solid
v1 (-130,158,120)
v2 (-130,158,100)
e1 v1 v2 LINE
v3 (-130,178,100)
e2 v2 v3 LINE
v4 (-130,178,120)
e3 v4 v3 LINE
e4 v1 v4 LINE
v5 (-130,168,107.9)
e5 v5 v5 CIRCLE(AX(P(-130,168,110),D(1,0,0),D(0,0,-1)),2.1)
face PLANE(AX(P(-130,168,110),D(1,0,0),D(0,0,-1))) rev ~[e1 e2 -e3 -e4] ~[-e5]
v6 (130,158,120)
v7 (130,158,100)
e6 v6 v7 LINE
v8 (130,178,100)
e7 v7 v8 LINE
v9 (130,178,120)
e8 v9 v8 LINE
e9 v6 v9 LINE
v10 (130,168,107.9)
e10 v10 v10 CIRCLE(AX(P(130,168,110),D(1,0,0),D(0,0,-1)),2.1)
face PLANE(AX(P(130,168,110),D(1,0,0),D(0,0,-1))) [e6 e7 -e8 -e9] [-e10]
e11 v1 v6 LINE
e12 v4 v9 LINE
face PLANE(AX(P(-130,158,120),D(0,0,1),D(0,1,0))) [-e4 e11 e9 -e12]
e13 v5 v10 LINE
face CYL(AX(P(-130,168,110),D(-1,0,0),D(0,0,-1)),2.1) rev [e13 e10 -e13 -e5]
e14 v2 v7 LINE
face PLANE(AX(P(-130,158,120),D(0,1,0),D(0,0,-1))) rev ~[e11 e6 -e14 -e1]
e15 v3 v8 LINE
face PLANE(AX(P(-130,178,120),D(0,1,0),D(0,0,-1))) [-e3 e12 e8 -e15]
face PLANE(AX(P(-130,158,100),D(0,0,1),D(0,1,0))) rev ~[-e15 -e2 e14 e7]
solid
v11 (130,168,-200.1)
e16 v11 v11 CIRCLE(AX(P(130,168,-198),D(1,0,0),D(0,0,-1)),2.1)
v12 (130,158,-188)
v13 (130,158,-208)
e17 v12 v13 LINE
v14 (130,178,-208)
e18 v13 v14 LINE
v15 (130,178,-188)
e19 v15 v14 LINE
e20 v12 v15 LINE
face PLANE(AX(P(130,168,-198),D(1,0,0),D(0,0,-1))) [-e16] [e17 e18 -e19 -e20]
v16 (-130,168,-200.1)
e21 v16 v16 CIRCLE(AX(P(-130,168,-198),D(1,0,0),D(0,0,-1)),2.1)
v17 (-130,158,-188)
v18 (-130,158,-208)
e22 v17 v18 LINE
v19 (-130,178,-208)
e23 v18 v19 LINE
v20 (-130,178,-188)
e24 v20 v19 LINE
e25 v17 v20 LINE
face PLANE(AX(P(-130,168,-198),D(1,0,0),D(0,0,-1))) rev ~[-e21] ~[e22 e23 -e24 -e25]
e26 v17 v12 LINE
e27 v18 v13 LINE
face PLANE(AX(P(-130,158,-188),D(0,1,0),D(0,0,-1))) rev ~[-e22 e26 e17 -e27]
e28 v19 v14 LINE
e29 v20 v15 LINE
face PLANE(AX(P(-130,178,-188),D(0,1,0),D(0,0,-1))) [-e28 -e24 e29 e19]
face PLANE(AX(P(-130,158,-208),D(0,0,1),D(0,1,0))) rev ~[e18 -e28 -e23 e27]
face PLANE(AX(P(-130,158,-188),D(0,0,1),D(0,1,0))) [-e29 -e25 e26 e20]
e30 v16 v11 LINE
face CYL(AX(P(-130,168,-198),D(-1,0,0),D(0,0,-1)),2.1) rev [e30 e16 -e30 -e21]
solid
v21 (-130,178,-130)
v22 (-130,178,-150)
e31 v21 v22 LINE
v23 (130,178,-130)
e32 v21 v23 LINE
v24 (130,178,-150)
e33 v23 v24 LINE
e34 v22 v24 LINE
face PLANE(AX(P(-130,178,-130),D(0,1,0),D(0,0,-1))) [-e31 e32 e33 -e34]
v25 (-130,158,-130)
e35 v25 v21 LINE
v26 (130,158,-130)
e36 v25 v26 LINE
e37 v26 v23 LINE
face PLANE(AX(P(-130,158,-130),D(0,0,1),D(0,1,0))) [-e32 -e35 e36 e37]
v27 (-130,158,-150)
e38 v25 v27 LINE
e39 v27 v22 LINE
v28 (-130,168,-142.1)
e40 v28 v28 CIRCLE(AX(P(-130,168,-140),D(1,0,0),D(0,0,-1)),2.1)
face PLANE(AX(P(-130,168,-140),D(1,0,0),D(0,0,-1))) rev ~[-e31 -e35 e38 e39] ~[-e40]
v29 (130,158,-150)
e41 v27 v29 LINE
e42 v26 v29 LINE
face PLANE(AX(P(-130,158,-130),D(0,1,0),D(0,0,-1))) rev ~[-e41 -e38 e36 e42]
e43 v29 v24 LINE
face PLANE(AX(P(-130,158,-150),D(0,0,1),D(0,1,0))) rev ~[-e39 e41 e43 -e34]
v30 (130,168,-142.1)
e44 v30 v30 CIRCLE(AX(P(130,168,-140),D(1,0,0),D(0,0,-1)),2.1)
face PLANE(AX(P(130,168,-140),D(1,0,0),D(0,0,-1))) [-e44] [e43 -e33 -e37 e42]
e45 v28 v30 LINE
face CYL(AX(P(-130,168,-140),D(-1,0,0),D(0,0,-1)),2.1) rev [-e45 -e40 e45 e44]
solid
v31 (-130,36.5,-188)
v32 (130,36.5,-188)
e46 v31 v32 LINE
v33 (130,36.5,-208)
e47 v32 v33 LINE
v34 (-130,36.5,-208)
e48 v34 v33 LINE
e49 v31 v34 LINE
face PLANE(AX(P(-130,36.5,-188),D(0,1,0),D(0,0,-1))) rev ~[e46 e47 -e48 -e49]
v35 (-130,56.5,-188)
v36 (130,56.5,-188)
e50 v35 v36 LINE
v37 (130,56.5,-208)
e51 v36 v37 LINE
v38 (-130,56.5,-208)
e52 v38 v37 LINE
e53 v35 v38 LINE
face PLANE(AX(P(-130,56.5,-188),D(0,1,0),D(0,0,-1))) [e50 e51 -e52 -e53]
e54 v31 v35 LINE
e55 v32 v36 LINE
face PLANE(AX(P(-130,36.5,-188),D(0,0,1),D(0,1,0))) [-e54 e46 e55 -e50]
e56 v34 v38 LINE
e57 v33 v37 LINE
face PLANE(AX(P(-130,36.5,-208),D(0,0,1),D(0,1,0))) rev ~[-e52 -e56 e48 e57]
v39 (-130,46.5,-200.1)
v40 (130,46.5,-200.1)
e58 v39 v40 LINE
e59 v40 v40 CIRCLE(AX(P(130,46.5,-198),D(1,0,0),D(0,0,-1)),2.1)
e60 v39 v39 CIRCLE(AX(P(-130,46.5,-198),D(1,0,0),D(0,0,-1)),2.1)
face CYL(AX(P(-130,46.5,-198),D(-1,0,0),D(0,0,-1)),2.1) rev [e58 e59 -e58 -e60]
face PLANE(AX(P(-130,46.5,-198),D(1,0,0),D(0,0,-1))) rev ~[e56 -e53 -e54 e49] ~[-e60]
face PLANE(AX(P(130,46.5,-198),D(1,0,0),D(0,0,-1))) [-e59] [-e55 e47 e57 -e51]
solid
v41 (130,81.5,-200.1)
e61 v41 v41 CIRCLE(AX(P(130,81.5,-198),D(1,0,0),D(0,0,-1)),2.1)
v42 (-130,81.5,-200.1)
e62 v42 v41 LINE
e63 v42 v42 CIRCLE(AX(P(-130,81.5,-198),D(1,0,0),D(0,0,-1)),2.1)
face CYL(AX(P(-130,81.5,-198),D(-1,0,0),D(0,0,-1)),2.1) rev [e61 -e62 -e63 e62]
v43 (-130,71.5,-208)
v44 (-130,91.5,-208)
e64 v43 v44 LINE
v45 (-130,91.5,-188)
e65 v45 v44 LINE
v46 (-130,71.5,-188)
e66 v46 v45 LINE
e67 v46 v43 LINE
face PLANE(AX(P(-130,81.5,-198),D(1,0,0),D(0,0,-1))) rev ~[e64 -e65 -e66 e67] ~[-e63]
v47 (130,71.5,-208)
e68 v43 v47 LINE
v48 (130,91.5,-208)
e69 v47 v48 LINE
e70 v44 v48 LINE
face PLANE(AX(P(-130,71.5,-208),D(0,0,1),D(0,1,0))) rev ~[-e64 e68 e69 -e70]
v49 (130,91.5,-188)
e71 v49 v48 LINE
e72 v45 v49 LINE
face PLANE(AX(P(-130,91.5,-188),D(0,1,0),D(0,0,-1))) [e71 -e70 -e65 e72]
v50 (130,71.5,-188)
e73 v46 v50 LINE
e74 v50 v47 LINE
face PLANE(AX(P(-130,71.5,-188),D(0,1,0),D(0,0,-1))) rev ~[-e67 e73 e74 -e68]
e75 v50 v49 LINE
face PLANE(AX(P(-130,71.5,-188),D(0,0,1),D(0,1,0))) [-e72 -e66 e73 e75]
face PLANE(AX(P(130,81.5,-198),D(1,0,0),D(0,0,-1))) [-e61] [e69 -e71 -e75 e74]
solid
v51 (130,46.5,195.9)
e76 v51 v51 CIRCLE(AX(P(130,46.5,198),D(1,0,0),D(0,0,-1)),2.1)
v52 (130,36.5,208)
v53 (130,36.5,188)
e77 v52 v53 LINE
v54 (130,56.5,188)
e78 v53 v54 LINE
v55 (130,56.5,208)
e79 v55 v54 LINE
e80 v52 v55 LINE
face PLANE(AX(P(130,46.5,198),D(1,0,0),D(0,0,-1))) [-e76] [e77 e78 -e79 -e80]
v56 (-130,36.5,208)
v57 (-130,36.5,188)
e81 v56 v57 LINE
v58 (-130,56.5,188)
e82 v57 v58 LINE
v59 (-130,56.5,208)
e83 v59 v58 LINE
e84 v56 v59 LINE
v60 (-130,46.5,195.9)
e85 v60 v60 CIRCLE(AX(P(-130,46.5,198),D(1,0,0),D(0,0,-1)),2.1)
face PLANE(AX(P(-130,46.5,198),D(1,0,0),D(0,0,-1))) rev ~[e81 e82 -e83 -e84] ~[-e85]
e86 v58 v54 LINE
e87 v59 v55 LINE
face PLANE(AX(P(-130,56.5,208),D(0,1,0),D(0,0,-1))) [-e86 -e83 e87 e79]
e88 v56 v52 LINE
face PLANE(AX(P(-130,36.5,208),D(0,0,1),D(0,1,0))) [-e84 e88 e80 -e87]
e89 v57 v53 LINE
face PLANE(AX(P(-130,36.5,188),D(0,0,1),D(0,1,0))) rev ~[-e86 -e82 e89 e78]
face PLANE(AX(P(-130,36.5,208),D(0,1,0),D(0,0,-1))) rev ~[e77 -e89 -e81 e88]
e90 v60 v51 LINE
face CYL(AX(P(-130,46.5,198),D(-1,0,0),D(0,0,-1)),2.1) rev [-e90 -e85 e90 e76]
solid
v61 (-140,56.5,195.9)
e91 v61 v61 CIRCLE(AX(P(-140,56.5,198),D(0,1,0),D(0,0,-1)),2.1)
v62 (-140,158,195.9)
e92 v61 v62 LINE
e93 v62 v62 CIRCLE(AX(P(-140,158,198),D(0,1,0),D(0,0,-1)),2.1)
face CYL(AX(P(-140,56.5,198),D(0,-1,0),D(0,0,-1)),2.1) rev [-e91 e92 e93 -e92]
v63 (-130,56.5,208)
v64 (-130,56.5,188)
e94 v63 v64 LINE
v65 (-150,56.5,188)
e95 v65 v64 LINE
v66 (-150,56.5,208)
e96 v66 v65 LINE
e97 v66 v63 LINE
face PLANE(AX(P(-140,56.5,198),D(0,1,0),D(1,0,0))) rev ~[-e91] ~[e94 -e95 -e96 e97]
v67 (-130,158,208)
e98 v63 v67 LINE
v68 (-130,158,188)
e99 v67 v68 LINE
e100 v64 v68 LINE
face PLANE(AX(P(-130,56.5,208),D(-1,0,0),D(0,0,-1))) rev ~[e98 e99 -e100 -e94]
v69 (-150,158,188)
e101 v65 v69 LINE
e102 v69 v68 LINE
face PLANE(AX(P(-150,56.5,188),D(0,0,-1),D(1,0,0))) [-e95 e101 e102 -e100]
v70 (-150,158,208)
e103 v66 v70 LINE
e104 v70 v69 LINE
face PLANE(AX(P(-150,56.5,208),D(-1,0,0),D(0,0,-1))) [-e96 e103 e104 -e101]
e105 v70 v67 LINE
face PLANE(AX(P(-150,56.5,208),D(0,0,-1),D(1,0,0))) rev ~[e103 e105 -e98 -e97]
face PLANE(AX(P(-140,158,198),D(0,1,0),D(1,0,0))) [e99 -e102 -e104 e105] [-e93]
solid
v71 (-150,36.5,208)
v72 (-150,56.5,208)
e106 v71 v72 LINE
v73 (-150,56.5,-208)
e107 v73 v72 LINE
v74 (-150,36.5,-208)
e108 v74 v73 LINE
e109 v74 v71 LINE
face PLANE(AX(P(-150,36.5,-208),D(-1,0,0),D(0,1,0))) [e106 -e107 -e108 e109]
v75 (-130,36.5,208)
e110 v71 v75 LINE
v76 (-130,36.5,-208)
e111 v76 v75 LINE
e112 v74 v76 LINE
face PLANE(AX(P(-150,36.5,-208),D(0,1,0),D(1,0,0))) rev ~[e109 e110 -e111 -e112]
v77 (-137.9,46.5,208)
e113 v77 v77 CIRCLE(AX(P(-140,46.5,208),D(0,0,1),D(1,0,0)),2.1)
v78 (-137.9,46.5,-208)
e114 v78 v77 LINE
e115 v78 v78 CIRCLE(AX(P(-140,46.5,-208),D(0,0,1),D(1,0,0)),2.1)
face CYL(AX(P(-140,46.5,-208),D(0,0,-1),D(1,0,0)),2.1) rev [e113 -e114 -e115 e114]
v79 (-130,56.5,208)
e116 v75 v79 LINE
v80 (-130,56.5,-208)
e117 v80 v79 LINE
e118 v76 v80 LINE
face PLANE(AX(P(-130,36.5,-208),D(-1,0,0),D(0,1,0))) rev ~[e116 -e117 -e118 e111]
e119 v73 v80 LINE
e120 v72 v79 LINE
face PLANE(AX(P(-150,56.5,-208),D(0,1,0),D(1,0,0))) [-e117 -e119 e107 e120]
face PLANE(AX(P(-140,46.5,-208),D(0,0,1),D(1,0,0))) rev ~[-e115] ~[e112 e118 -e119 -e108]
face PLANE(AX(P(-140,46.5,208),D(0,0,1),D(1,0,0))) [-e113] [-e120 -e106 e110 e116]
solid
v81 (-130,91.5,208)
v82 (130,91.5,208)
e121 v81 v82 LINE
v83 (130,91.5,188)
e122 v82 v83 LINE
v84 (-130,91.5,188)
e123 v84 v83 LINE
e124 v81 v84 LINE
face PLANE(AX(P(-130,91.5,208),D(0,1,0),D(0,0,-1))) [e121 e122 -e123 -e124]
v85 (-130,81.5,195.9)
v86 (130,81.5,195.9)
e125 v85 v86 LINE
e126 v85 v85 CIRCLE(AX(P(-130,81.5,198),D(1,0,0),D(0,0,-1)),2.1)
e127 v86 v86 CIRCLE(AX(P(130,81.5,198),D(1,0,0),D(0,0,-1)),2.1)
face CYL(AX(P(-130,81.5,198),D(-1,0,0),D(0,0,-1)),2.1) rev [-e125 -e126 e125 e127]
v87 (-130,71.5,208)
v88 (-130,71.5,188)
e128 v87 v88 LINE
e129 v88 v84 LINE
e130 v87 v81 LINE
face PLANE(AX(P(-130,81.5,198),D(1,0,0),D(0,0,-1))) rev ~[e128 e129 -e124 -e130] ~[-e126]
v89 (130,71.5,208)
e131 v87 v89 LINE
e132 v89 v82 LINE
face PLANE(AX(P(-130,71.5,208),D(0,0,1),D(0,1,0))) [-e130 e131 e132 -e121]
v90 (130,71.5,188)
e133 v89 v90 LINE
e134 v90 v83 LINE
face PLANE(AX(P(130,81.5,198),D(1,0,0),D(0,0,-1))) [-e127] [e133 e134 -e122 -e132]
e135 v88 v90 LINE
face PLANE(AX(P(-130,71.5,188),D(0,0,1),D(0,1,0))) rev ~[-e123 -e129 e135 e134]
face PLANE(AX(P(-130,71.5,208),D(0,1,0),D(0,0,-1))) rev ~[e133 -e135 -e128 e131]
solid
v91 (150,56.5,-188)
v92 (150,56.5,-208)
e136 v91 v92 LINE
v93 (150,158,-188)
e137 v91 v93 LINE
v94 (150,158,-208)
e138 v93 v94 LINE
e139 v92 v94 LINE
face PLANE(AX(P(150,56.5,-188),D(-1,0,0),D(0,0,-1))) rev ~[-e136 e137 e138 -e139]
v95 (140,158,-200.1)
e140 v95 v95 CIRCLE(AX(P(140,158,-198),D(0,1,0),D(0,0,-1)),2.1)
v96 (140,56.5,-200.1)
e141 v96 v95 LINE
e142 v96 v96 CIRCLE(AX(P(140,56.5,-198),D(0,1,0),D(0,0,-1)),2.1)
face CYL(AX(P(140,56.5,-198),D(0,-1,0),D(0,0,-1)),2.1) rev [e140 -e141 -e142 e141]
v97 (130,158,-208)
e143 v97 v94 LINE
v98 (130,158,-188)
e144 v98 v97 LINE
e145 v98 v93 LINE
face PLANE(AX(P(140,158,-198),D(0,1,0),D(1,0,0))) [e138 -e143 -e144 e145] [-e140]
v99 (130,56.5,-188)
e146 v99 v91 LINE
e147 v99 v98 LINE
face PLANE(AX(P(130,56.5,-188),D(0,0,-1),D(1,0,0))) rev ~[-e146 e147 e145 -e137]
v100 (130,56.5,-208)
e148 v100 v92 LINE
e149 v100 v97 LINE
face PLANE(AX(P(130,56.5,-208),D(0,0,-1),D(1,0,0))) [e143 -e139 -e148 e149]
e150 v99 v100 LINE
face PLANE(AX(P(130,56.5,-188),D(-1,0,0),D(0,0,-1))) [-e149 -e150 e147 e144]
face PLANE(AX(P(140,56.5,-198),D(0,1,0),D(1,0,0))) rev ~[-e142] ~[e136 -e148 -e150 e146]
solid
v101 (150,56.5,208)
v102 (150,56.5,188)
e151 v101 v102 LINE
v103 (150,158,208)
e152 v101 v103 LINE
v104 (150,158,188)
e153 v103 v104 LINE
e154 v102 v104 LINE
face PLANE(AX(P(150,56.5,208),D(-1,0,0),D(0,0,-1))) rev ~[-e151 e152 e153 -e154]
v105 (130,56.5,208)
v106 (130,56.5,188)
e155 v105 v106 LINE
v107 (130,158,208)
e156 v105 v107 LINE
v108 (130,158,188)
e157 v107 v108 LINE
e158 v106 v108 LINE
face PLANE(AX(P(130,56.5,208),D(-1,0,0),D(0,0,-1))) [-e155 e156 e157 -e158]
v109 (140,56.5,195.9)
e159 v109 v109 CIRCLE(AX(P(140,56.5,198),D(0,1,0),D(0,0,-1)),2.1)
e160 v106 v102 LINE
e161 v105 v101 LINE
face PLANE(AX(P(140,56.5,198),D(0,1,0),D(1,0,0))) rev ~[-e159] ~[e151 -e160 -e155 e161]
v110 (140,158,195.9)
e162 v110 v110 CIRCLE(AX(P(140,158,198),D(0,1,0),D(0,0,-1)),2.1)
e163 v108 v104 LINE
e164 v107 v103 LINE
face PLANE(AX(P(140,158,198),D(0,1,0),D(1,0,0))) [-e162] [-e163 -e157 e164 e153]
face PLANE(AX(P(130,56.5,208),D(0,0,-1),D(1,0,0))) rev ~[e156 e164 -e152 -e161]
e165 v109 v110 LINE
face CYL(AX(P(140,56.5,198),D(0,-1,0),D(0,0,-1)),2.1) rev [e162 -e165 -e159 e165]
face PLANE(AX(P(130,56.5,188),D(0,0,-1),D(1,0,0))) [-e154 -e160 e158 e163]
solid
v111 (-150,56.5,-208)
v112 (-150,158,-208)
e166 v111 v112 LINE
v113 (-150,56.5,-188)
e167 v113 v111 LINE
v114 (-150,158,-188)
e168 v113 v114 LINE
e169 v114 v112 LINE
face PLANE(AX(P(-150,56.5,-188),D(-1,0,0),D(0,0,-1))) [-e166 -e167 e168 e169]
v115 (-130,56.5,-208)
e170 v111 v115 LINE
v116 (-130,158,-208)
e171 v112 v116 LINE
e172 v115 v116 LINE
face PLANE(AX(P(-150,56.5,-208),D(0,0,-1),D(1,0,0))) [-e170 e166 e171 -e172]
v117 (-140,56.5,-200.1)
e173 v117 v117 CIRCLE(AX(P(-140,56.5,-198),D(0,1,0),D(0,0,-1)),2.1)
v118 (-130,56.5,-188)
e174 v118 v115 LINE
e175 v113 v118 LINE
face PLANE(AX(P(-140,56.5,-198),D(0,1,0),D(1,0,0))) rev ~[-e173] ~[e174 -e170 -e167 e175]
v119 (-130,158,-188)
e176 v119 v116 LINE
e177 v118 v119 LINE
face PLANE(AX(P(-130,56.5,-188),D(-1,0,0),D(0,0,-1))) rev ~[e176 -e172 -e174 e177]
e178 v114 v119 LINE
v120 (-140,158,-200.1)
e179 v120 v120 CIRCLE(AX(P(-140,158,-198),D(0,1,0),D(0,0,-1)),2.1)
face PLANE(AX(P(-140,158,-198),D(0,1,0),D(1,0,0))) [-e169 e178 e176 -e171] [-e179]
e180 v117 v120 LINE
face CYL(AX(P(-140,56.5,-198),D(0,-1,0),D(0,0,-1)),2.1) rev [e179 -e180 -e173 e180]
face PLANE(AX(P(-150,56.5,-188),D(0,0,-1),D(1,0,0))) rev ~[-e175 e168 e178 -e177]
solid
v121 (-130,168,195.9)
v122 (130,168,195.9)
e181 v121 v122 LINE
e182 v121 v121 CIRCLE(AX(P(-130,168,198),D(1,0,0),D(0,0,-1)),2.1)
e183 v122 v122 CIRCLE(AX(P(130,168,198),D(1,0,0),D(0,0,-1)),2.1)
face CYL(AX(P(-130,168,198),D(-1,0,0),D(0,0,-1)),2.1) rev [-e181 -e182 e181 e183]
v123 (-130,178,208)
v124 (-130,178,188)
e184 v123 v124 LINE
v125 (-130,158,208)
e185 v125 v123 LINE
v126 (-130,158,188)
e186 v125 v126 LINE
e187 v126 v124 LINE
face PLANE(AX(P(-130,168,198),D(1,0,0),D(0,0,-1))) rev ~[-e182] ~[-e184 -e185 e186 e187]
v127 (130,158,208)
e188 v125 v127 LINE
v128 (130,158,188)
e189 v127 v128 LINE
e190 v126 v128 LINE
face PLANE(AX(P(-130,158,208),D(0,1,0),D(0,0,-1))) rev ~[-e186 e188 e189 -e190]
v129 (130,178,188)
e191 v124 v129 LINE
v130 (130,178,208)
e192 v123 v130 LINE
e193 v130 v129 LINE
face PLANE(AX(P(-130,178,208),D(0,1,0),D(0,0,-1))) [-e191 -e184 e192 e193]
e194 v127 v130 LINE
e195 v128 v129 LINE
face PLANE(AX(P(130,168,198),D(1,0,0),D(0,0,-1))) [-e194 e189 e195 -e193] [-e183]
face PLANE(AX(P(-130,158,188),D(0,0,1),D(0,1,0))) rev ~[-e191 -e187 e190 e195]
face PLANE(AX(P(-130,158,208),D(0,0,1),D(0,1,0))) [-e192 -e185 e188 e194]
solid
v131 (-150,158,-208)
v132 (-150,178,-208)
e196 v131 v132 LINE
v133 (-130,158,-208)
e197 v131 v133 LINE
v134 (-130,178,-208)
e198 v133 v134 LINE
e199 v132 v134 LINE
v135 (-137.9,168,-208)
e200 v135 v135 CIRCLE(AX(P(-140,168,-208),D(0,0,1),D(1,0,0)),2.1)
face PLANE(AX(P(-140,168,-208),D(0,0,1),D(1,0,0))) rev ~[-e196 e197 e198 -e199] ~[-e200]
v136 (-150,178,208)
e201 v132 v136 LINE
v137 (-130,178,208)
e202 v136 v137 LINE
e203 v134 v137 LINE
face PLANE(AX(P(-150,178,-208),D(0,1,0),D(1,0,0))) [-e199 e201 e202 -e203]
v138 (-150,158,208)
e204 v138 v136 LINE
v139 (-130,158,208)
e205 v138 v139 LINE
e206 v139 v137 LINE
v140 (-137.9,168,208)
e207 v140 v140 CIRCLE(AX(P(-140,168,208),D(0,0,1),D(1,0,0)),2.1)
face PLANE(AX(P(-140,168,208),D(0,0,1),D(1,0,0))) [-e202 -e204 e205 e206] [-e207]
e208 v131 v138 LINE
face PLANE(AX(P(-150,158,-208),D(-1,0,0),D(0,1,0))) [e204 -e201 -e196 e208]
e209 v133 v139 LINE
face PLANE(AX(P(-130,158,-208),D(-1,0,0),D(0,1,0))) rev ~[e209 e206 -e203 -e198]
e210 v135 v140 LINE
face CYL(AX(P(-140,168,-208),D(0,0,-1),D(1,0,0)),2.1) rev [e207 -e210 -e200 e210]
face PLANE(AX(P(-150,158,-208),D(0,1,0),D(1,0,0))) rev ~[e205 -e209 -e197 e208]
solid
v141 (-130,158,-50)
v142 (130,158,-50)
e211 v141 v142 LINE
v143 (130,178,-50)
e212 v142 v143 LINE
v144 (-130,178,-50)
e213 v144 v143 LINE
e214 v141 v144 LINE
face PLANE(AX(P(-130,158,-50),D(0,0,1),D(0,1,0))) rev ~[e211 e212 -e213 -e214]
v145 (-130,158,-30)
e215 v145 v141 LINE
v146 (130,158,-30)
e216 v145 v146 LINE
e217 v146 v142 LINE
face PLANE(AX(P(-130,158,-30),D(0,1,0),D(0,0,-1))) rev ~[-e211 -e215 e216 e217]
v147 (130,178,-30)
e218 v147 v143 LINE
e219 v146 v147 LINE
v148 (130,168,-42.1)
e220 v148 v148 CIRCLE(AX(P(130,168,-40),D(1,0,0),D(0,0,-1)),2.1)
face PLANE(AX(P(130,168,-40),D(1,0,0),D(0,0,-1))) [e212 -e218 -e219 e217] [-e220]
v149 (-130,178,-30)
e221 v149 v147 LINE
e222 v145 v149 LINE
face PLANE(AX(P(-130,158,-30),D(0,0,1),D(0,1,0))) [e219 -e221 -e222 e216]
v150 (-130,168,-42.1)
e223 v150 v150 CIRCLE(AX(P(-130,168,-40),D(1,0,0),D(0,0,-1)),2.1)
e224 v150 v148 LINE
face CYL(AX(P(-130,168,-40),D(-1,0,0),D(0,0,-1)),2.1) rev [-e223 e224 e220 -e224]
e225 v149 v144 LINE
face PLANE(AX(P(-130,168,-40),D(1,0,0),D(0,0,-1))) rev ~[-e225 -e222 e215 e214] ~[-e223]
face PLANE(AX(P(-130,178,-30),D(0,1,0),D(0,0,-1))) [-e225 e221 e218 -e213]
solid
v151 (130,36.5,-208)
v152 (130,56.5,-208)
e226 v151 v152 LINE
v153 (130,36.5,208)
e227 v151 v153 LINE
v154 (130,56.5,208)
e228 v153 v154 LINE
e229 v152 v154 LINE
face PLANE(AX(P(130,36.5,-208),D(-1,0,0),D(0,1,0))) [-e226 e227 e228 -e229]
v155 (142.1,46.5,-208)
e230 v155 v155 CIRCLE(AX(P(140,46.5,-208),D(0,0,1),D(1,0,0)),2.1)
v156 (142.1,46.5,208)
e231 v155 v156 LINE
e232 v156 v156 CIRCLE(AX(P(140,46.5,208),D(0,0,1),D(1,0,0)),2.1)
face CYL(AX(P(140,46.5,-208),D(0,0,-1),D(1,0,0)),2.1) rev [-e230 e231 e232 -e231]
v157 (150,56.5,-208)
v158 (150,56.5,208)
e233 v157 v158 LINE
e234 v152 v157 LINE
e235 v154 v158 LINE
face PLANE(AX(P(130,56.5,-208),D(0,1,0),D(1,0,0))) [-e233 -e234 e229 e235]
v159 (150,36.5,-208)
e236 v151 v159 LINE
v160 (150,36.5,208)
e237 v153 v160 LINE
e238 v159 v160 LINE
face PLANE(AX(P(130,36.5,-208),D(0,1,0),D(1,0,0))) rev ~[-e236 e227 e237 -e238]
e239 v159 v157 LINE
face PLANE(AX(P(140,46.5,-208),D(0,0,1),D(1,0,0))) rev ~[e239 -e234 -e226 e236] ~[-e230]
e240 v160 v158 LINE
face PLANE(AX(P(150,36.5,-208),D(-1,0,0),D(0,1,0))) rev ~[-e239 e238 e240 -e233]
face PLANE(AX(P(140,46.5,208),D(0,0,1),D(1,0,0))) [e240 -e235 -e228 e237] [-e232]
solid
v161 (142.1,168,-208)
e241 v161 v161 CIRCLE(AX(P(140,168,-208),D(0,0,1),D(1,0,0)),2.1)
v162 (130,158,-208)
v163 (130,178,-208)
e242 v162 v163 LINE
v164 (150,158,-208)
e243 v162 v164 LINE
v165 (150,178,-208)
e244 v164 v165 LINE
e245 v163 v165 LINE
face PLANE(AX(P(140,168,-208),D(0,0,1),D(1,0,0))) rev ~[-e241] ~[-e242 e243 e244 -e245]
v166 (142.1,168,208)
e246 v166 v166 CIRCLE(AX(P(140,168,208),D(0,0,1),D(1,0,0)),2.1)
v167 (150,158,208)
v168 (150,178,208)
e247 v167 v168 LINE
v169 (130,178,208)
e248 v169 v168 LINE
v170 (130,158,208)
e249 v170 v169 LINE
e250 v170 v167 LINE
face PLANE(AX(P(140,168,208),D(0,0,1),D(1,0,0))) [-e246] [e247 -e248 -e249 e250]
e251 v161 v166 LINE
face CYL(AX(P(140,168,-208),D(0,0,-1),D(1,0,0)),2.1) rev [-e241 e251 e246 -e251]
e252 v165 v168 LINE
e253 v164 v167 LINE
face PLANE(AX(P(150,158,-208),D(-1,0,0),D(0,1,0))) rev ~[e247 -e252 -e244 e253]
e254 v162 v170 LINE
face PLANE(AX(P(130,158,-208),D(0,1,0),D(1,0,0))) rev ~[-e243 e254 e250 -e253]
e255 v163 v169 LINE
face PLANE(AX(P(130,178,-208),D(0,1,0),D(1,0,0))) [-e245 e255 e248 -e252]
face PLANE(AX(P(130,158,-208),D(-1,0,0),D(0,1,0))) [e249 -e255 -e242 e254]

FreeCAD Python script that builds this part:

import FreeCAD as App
import Part
import Sketcher
from FreeCAD import Vector
Q = App.Units.Quantity

doc = App.newDocument("Part")
body = doc.addObject("PartDesign::Body", "Body")

sketch1 = body.newObject("Sketcher::SketchObject", "Sketch")
sketch1.AttachmentSupport = (doc.getObject("XY_Plane"), [""])
sketch1.MapMode = "FlatFace"
sketch1.AttachmentOffset = App.Placement(Vector(0, 0, -208), App.Rotation())
sketch1.addGeometry([
    Part.LineSegment(Vector(130, 56.5, 0), Vector(130, 36.5, 0)),
    Part.LineSegment(Vector(130, 36.5, 0), Vector(150, 36.5, 0)),
    Part.LineSegment(Vector(150, 36.5, 0), Vector(150, 56.5, 0)),
    Part.LineSegment(Vector(150, 56.5, 0), Vector(130, 56.5, 0)),
    Part.Circle(Vector(140, 46.5, 0), Vector(0, 0, 1), 2.1),
], False)
sketch1.addConstraint([
    Sketcher.Constraint("Coincident", 0, 2, 1, 1),
    Sketcher.Constraint("Coincident", 1, 2, 2, 1),
    Sketcher.Constraint("Coincident", 2, 2, 3, 1),
    Sketcher.Constraint("Coincident", 3, 2, 0, 1),
    Sketcher.Constraint("Vertical", 0),
    Sketcher.Constraint("Horizontal", 1),
    Sketcher.Constraint("Vertical", 2),
    Sketcher.Constraint("Horizontal", 3),
    Sketcher.Constraint("Equal", 3, 0),
    Sketcher.Constraint("Diameter", 4, Q("4.2 mm")),
    Sketcher.Constraint("DistanceX", 1, 1, 1, 2, Q("20 mm")),
    Sketcher.Constraint("DistanceX", -1, 1, 4, 3, Q("140 mm")),
    Sketcher.Constraint("DistanceX", -1, 1, 0, 2, Q("130 mm")),
    Sketcher.Constraint("DistanceY", 0, 2, 4, 3, Q("10 mm")),
    Sketcher.Constraint("DistanceY", -1, 1, 4, 3, Q("46.5 mm")),
])
pad1 = body.newObject("PartDesign::Pad", "Pad")
pad1.Profile = sketch1
pad1.Length = 416
body2 = doc.addObject("PartDesign::Body", "Body001")

sketch2 = body2.newObject("Sketcher::SketchObject", "Sketch001")
sketch2.AttachmentSupport = (doc.getObject("XY_Plane001"), [""])
sketch2.MapMode = "FlatFace"
sketch2.AttachmentOffset = App.Placement(Vector(0, 0, -208), App.Rotation())
sketch2.addGeometry([
    Part.LineSegment(Vector(-150, 56.5, 0), Vector(-150, 36.5, 0)),
    Part.LineSegment(Vector(-150, 36.5, 0), Vector(-130, 36.5, 0)),
    Part.LineSegment(Vector(-130, 36.5, 0), Vector(-130, 56.5, 0)),
    Part.LineSegment(Vector(-130, 56.5, 0), Vector(-150, 56.5, 0)),
    Part.Circle(Vector(-140, 46.5, 0), Vector(0, 0, 1), 2.1),
], False)
sketch2.addConstraint([
    Sketcher.Constraint("Coincident", 0, 2, 1, 1),
    Sketcher.Constraint("Coincident", 1, 2, 2, 1),
    Sketcher.Constraint("Coincident", 2, 2, 3, 1),
    Sketcher.Constraint("Coincident", 3, 2, 0, 1),
    Sketcher.Constraint("Vertical", 0),
    Sketcher.Constraint("Horizontal", 1),
    Sketcher.Constraint("Vertical", 2),
    Sketcher.Constraint("Horizontal", 3),
    Sketcher.Constraint("Equal", 3, 0),
    Sketcher.Constraint("Diameter", 4, Q("4.2 mm")),
    Sketcher.Constraint("DistanceX", 1, 1, 1, 2, Q("20 mm")),
    Sketcher.Constraint("DistanceX", 4, 3, -1, 1, Q("140 mm")),
    Sketcher.Constraint("DistanceX", 0, 2, -1, 1, Q("150 mm")),
    Sketcher.Constraint("DistanceY", 0, 2, 4, 3, Q("10 mm")),
    Sketcher.Constraint("DistanceY", -1, 1, 4, 3, Q("46.5 mm")),
])
pad2 = body2.newObject("PartDesign::Pad", "Pad001")
pad2.Profile = sketch2
pad2.Length = 416
body3 = doc.addObject("PartDesign::Body", "Body002")

sketch3 = body3.newObject("Sketcher::SketchObject", "Sketch002")
sketch3.AttachmentSupport = (doc.getObject("XY_Plane002"), [""])
sketch3.MapMode = "FlatFace"
sketch3.AttachmentOffset = App.Placement(Vector(0, 0, -208), App.Rotation())
sketch3.addGeometry([
    Part.LineSegment(Vector(130, 178, 0), Vector(130, 158, 0)),
    Part.LineSegment(Vector(130, 158, 0), Vector(150, 158, 0)),
    Part.LineSegment(Vector(150, 158, 0), Vector(150, 178, 0)),
    Part.LineSegment(Vector(150, 178, 0), Vector(130, 178, 0)),
    Part.Circle(Vector(140, 168, 0), Vector(0, 0, 1), 2.1),
], False)
sketch3.addConstraint([
    Sketcher.Constraint("Coincident", 0, 2, 1, 1),
    Sketcher.Constraint("Coincident", 1, 2, 2, 1),
    Sketcher.Constraint("Coincident", 2, 2, 3, 1),
    Sketcher.Constraint("Coincident", 3, 2, 0, 1),
    Sketcher.Constraint("Vertical", 0),
    Sketcher.Constraint("Horizontal", 1),
    Sketcher.Constraint("Vertical", 2),
    Sketcher.Constraint("Horizontal", 3),
    Sketcher.Constraint("Equal", 3, 0),
    Sketcher.Constraint("Diameter", 4, Q("4.2 mm")),
    Sketcher.Constraint("DistanceX", 1, 1, 1, 2, Q("20 mm")),
    Sketcher.Constraint("DistanceX", -1, 1, 4, 3, Q("140 mm")),
    Sketcher.Constraint("DistanceY", -1, 1, 4, 3, Q("168 mm")),
    Sketcher.Constraint("DistanceX", -1, 1, 0, 2, Q("130 mm")),
    Sketcher.Constraint("DistanceY", -1, 1, 0, 2, Q("158 mm")),
])
pad3 = body3.newObject("PartDesign::Pad", "Pad002")
pad3.Profile = sketch3
pad3.Length = 416
body4 = doc.addObject("PartDesign::Body", "Body003")

sketch4 = body4.newObject("Sketcher::SketchObject", "Sketch003")
sketch4.AttachmentSupport = (doc.getObject("XY_Plane003"), [""])
sketch4.MapMode = "FlatFace"
sketch4.AttachmentOffset = App.Placement(Vector(0, 0, -208), App.Rotation())
sketch4.addGeometry([
    Part.LineSegment(Vector(-150, 178, 0), Vector(-150, 158, 0)),
    Part.LineSegment(Vector(-150, 158, 0), Vector(-130, 158, 0)),
    Part.LineSegment(Vector(-130, 158, 0), Vector(-130, 178, 0)),
    Part.LineSegment(Vector(-130, 178, 0), Vector(-150, 178, 0)),
    Part.Circle(Vector(-140, 168, 0), Vector(0, 0, 1), 2.1),
], False)
sketch4.addConstraint([
    Sketcher.Constraint("Coincident", 0, 2, 1, 1),
    Sketcher.Constraint("Coincident", 1, 2, 2, 1),
    Sketcher.Constraint("Coincident", 2, 2, 3, 1),
    Sketcher.Constraint("Coincident", 3, 2, 0, 1),
    Sketcher.Constraint("Vertical", 0),
    Sketcher.Constraint("Horizontal", 1),
    Sketcher.Constraint("Vertical", 2),
    Sketcher.Constraint("Horizontal", 3),
    Sketcher.Constraint("Equal", 3, 0),
    Sketcher.Constraint("Diameter", 4, Q("4.2 mm")),
    Sketcher.Constraint("DistanceX", 1, 1, 1, 2, Q("20 mm")),
    Sketcher.Constraint("DistanceX", 4, 3, -1, 1, Q("140 mm")),
    Sketcher.Constraint("DistanceY", -1, 1, 4, 3, Q("168 mm")),
    Sketcher.Constraint("DistanceX", 0, 2, -1, 1, Q("150 mm")),
    Sketcher.Constraint("DistanceY", -1, 1, 0, 2, Q("158 mm")),
])
pad4 = body4.newObject("PartDesign::Pad", "Pad003")
pad4.Profile = sketch4
pad4.Length = 416
body5 = doc.addObject("PartDesign::Body", "Body004")

sketch5 = body5.newObject("Sketcher::SketchObject", "Sketch004")
sketch5.AttachmentSupport = (doc.getObject("YZ_Plane004"), [""])
sketch5.MapMode = "FlatFace"
sketch5.AttachmentOffset = App.Placement(Vector(0, 0, -130), App.Rotation())
sketch5.addGeometry([
    Part.LineSegment(Vector(56.5, 208, 0), Vector(36.5, 208, 0)),
    Part.LineSegment(Vector(36.5, 208, 0), Vector(36.5, 188, 0)),
    Part.LineSegment(Vector(36.5, 188, 0), Vector(56.5, 188, 0)),
    Part.LineSegment(Vector(56.5, 188, 0), Vector(56.5, 208, 0)),
    Part.Circle(Vector(46.5, 198, 0), Vector(0, 0, 1), 2.1),
], False)
sketch5.addConstraint([
    Sketcher.Constraint("Coincident", 0, 2, 1, 1),
    Sketcher.Constraint("Coincident", 1, 2, 2, 1),
    Sketcher.Constraint("Coincident", 2, 2, 3, 1),
    Sketcher.Constraint("Coincident", 3, 2, 0, 1),
    Sketcher.Constraint("Horizontal", 0),
    Sketcher.Constraint("Vertical", 1),
    Sketcher.Constraint("Horizontal", 2),
    Sketcher.Constraint("Vertical", 3),
    Sketcher.Constraint("Equal", 2, 1),
    Sketcher.Constraint("Diameter", 4, Q("4.2 mm")),
    Sketcher.Constraint("DistanceX", 0, 2, 0, 1, Q("20 mm")),
    Sketcher.Constraint("DistanceY", -1, 1, 4, 3, Q("198 mm")),
    Sketcher.Constraint("DistanceY", -1, 1, 0, 2, Q("208 mm")),
    Sketcher.Constraint("DistanceX", 0, 2, 4, 3, Q("10 mm")),
    Sketcher.Constraint("DistanceX", -1, 1, 4, 3, Q("46.5 mm")),
])
pad5 = body5.newObject("PartDesign::Pad", "Pad004")
pad5.Profile = sketch5
pad5.Length = 260
body6 = doc.addObject("PartDesign::Body", "Body005")

sketch6 = body6.newObject("Sketcher::SketchObject", "Sketch005")
sketch6.AttachmentSupport = (doc.getObject("YZ_Plane005"), [""])
sketch6.MapMode = "FlatFace"
sketch6.AttachmentOffset = App.Placement(Vector(0, 0, -130), App.Rotation())
sketch6.addGeometry([
    Part.LineSegment(Vector(56.5, -188, 0), Vector(36.5, -188, 0)),
    Part.LineSegment(Vector(36.5, -188, 0), Vector(36.5, -208, 0)),
    Part.LineSegment(Vector(36.5, -208, 0), Vector(56.5, -208, 0)),
    Part.LineSegment(Vector(56.5, -208, 0), Vector(56.5, -188, 0)),
    Part.Circle(Vector(46.5, -198, 0), Vector(0, 0, 1), 2.1),
], False)
sketch6.addConstraint([
    Sketcher.Constraint("Coincident", 0, 2, 1, 1),
    Sketcher.Constraint("Coincident", 1, 2, 2, 1),
    Sketcher.Constraint("Coincident", 2, 2, 3, 1),
    Sketcher.Constraint("Coincident", 3, 2, 0, 1),
    Sketcher.Constraint("Horizontal", 0),
    Sketcher.Constraint("Vertical", 1),
    Sketcher.Constraint("Horizontal", 2),
    Sketcher.Constraint("Vertical", 3),
    Sketcher.Constraint("Equal", 2, 1),
    Sketcher.Constraint("Diameter", 4, Q("4.2 mm")),
    Sketcher.Constraint("DistanceX", 0, 2, 0, 1, Q("20 mm")),
    Sketcher.Constraint("DistanceY", 4, 3, -1, 1, Q("198 mm")),
    Sketcher.Constraint("DistanceY", 0, 2, -1, 1, Q("188 mm")),
    Sketcher.Constraint("DistanceX", 0, 2, 4, 3, Q("10 mm")),
    Sketcher.Constraint("DistanceX", -1, 1, 4, 3, Q("46.5 mm")),
])
pad6 = body6.newObject("PartDesign::Pad", "Pad005")
pad6.Profile = sketch6
pad6.Length = 260
body7 = doc.addObject("PartDesign::Body", "Body006")

sketch7 = body7.newObject("Sketcher::SketchObject", "Sketch006")
sketch7.AttachmentSupport = (doc.getObject("YZ_Plane006"), [""])
sketch7.MapMode = "FlatFace"
sketch7.AttachmentOffset = App.Placement(Vector(0, 0, -130), App.Rotation())
sketch7.addGeometry([
    Part.LineSegment(Vector(178, 208, 0), Vector(158, 208, 0)),
    Part.LineSegment(Vector(158, 208, 0), Vector(158, 188, 0)),
    Part.LineSegment(Vector(158, 188, 0), Vector(178, 188, 0)),
    Part.LineSegment(Vector(178, 188, 0), Vector(178, 208, 0)),
    Part.Circle(Vector(168, 198, 0), Vector(0, 0, 1), 2.1),
], False)
sketch7.addConstraint([
    Sketcher.Constraint("Coincident", 0, 2, 1, 1),
    Sketcher.Constraint("Coincident", 1, 2, 2, 1),
    Sketcher.Constraint("Coincident", 2, 2, 3, 1),
    Sketcher.Constraint("Coincident", 3, 2, 0, 1),
    Sketcher.Constraint("Horizontal", 0),
    Sketcher.Constraint("Vertical", 1),
    Sketcher.Constraint("Horizontal", 2),
    Sketcher.Constraint("Vertical", 3),
    Sketcher.Constraint("Equal", 2, 1),
    Sketcher.Constraint("Diameter", 4, Q("4.2 mm")),
    Sketcher.Constraint("DistanceX", 0, 2, 0, 1, Q("20 mm")),
    Sketcher.Constraint("DistanceX", -1, 1, 4, 3, Q("168 mm")),
    Sketcher.Constraint("DistanceY", -1, 1, 4, 3, Q("198 mm")),
    Sketcher.Constraint("DistanceX", -1, 1, 0, 2, Q("158 mm")),
    Sketcher.Constraint("DistanceY", -1, 1, 0, 2, Q("208 mm")),
])
pad7 = body7.newObject("PartDesign::Pad", "Pad006")
pad7.Profile = sketch7
pad7.Length = 260
body8 = doc.addObject("PartDesign::Body", "Body007")

sketch8 = body8.newObject("Sketcher::SketchObject", "Sketch007")
sketch8.AttachmentSupport = (doc.getObject("YZ_Plane007"), [""])
sketch8.MapMode = "FlatFace"
sketch8.AttachmentOffset = App.Placement(Vector(0, 0, -130), App.Rotation())
sketch8.addGeometry([
    Part.LineSegment(Vector(178, -188, 0), Vector(158, -188, 0)),
    Part.LineSegment(Vector(158, -188, 0), Vector(158, -208, 0)),
    Part.LineSegment(Vector(158, -208, 0), Vector(178, -208, 0)),
    Part.LineSegment(Vector(178, -208, 0), Vector(178, -188, 0)),
    Part.Circle(Vector(168, -198, 0), Vector(0, 0, 1), 2.1),
], False)
sketch8.addConstraint([
    Sketcher.Constraint("Coincident", 0, 2, 1, 1),
    Sketcher.Constraint("Coincident", 1, 2, 2, 1),
    Sketcher.Constraint("Coincident", 2, 2, 3, 1),
    Sketcher.Constraint("Coincident", 3, 2, 0, 1),
    Sketcher.Constraint("Horizontal", 0),
    Sketcher.Constraint("Vertical", 1),
    Sketcher.Constraint("Horizontal", 2),
    Sketcher.Constraint("Vertical", 3),
    Sketcher.Constraint("Equal", 2, 1),
    Sketcher.Constraint("Diameter", 4, Q("4.2 mm")),
    Sketcher.Constraint("DistanceX", 0, 2, 0, 1, Q("20 mm")),
    Sketcher.Constraint("DistanceX", -1, 1, 4, 3, Q("168 mm")),
    Sketcher.Constraint("DistanceY", 4, 3, -1, 1, Q("198 mm")),
    Sketcher.Constraint("DistanceX", -1, 1, 0, 2, Q("158 mm")),
    Sketcher.Constraint("DistanceY", 0, 2, -1, 1, Q("188 mm")),
])
pad8 = body8.newObject("PartDesign::Pad", "Pad007")
pad8.Profile = sketch8
pad8.Length = 260
body9 = doc.addObject("PartDesign::Body", "Body008")

sketch9 = body9.newObject("Sketcher::SketchObject", "Sketch008")
sketch9.AttachmentSupport = (doc.getObject("YZ_Plane008"), [""])
sketch9.MapMode = "FlatFace"
sketch9.AttachmentOffset = App.Placement(Vector(0, 0, -130), App.Rotation())
sketch9.addGeometry([
    Part.LineSegment(Vector(91.5, 208, 0), Vector(71.5, 208, 0)),
    Part.LineSegment(Vector(71.5, 208, 0), Vector(71.5, 188, 0)),
    Part.LineSegment(Vector(71.5, 188, 0), Vector(91.5, 188, 0)),
    Part.LineSegment(Vector(91.5, 188, 0), Vector(91.5, 208, 0)),
    Part.Circle(Vector(81.5, 198, 0), Vector(0, 0, 1), 2.1),
], False)
sketch9.addConstraint([
    Sketcher.Constraint("Coincident", 0, 2, 1, 1),
    Sketcher.Constraint("Coincident", 1, 2, 2, 1),
    Sketcher.Constraint("Coincident", 2, 2, 3, 1),
    Sketcher.Constraint("Coincident", 3, 2, 0, 1),
    Sketcher.Constraint("Horizontal", 0),
    Sketcher.Constraint("Vertical", 1),
    Sketcher.Constraint("Horizontal", 2),
    Sketcher.Constraint("Vertical", 3),
    Sketcher.Constraint("Equal", 2, 1),
    Sketcher.Constraint("Diameter", 4, Q("4.2 mm")),
    Sketcher.Constraint("DistanceX", 0, 2, 0, 1, Q("20 mm")),
    Sketcher.Constraint("DistanceY", -1, 1, 4, 3, Q("198 mm")),
    Sketcher.Constraint("DistanceY", -1, 1, 0, 2, Q("208 mm")),
    Sketcher.Constraint("DistanceX", 0, 2, 4, 3, Q("10 mm")),
    Sketcher.Constraint("DistanceX", -1, 1, 4, 3, Q("81.5 mm")),
])
pad9 = body9.newObject("PartDesign::Pad", "Pad008")
pad9.Profile = sketch9
pad9.Length = 260
body10 = doc.addObject("PartDesign::Body", "Body009")

sketch10 = body10.newObject("Sketcher::SketchObject", "Sketch009")
sketch10.AttachmentSupport = (doc.getObject("YZ_Plane009"), [""])
sketch10.MapMode = "FlatFace"
sketch10.AttachmentOffset = App.Placement(Vector(0, 0, -130), App.Rotation())
sketch10.addGeometry([
    Part.LineSegment(Vector(91.5, -188, 0), Vector(71.5, -188, 0)),
    Part.LineSegment(Vector(71.5, -188, 0), Vector(71.5, -208, 0)),
    Part.LineSegment(Vector(71.5, -208, 0), Vector(91.5, -208, 0)),
    Part.LineSegment(Vector(91.5, -208, 0), Vector(91.5, -188, 0)),
    Part.Circle(Vector(81.5, -198, 0), Vector(0, 0, 1), 2.1),
], False)
sketch10.addConstraint([
    Sketcher.Constraint("Coincident", 0, 2, 1, 1),
    Sketcher.Constraint("Coincident", 1, 2, 2, 1),
    Sketcher.Constraint("Coincident", 2, 2, 3, 1),
    Sketcher.Constraint("Coincident", 3, 2, 0, 1),
    Sketcher.Constraint("Horizontal", 0),
    Sketcher.Constraint("Vertical", 1),
    Sketcher.Constraint("Horizontal", 2),
    Sketcher.Constraint("Vertical", 3),
    Sketcher.Constraint("Equal", 2, 1),
    Sketcher.Constraint("Diameter", 4, Q("4.2 mm")),
    Sketcher.Constraint("DistanceX", 0, 2, 0, 1, Q("20 mm")),
    Sketcher.Constraint("DistanceY", 4, 3, -1, 1, Q("198 mm")),
    Sketcher.Constraint("DistanceY", 0, 2, -1, 1, Q("188 mm")),
    Sketcher.Constraint("DistanceX", 0, 2, 4, 3, Q("10 mm")),
    Sketcher.Constraint("DistanceX", -1, 1, 4, 3, Q("81.5 mm")),
])
pad10 = body10.newObject("PartDesign::Pad", "Pad009")
pad10.Profile = sketch10
pad10.Length = 260
body11 = doc.addObject("PartDesign::Body", "Body010")

sketch11 = body11.newObject("Sketcher::SketchObject", "Sketch010")
sketch11.AttachmentSupport = (doc.getObject("YZ_Plane010"), [""])
sketch11.MapMode = "FlatFace"
sketch11.AttachmentOffset = App.Placement(Vector(0, 0, -130), App.Rotation())
sketch11.addGeometry([
    Part.LineSegment(Vector(178, -30, 0), Vector(158, -30, 0)),
    Part.LineSegment(Vector(158, -30, 0), Vector(158, -50, 0)),
    Part.LineSegment(Vector(158, -50, 0), Vector(178, -50, 0)),
    Part.LineSegment(Vector(178, -50, 0), Vector(178, -30, 0)),
    Part.Circle(Vector(168, -40, 0), Vector(0, 0, 1), 2.1),
], False)
sketch11.addConstraint([
    Sketcher.Constraint("Coincident", 0, 2, 1, 1),
    Sketcher.Constraint("Coincident", 1, 2, 2, 1),
    Sketcher.Constraint("Coincident", 2, 2, 3, 1),
    Sketcher.Constraint("Coincident", 3, 2, 0, 1),
    Sketcher.Constraint("Horizontal", 0),
    Sketcher.Constraint("Vertical", 1),
    Sketcher.Constraint("Horizontal", 2),
    Sketcher.Constraint("Vertical", 3),
    Sketcher.Constraint("Equal", 2, 1),
    Sketcher.Constraint("Diameter", 4, Q("4.2 mm")),
    Sketcher.Constraint("DistanceX", 0, 2, 0, 1, Q("20 mm")),
    Sketcher.Constraint("DistanceX", -1, 1, 4, 3, Q("168 mm")),
    Sketcher.Constraint("DistanceY", 4, 3, -1, 1, Q("40 mm")),
    Sketcher.Constraint("DistanceX", -1, 1, 0, 2, Q("158 mm")),
    Sketcher.Constraint("DistanceY", 0, 2, -1, 1, Q("30 mm")),
])
pad11 = body11.newObject("PartDesign::Pad", "Pad010")
pad11.Profile = sketch11
pad11.Length = 260
body12 = doc.addObject("PartDesign::Body", "Body011")

sketch12 = body12.newObject("Sketcher::SketchObject", "Sketch011")
sketch12.AttachmentSupport = (doc.getObject("YZ_Plane011"), [""])
sketch12.MapMode = "FlatFace"
sketch12.AttachmentOffset = App.Placement(Vector(0, 0, -130), App.Rotation())
sketch12.addGeometry([
    Part.LineSegment(Vector(178, -130, 0), Vector(158, -130, 0)),
    Part.LineSegment(Vector(158, -130, 0), Vector(158, -150, 0)),
    Part.LineSegment(Vector(158, -150, 0), Vector(178, -150, 0)),
    Part.LineSegment(Vector(178, -150, 0), Vector(178, -130, 0)),
    Part.Circle(Vector(168, -140, 0), Vector(0, 0, 1), 2.1),
], False)
sketch12.addConstraint([
    Sketcher.Constraint("Coincident", 0, 2, 1, 1),
    Sketcher.Constraint("Coincident", 1, 2, 2, 1),
    Sketcher.Constraint("Coincident", 2, 2, 3, 1),
    Sketcher.Constraint("Coincident", 3, 2, 0, 1),
    Sketcher.Constraint("Horizontal", 0),
    Sketcher.Constraint("Vertical", 1),
    Sketcher.Constraint("Horizontal", 2),
    Sketcher.Constraint("Vertical", 3),
    Sketcher.Constraint("Equal", 2, 1),
    Sketcher.Constraint("Diameter", 4, Q("4.2 mm")),
    Sketcher.Constraint("DistanceX", 0, 2, 0, 1, Q("20 mm")),
    Sketcher.Constraint("DistanceX", -1, 1, 4, 3, Q("168 mm")),
    Sketcher.Constraint("DistanceY", 4, 3, -1, 1, Q("140 mm")),
    Sketcher.Constraint("DistanceX", -1, 1, 0, 2, Q("158 mm")),
    Sketcher.Constraint("DistanceY", 0, 2, -1, 1, Q("130 mm")),
])
pad12 = body12.newObject("PartDesign::Pad", "Pad011")
pad12.Profile = sketch12
pad12.Length = 260
body13 = doc.addObject("PartDesign::Body", "Body012")

sketch13 = body13.newObject("Sketcher::SketchObject", "Sketch012")
sketch13.AttachmentSupport = (doc.getObject("YZ_Plane012"), [""])
sketch13.MapMode = "FlatFace"
sketch13.AttachmentOffset = App.Placement(Vector(0, 0, -130), App.Rotation())
sketch13.addGeometry([
    Part.LineSegment(Vector(178, 120, 0), Vector(158, 120, 0)),
    Part.LineSegment(Vector(158, 120, 0), Vector(158, 100, 0)),
    Part.LineSegment(Vector(158, 100, 0), Vector(178, 100, 0)),
    Part.LineSegment(Vector(178, 100, 0), Vector(178, 120, 0)),
    Part.Circle(Vector(168, 110, 0), Vector(0, 0, 1), 2.1),
], False)
sketch13.addConstraint([
    Sketcher.Constraint("Coincident", 0, 2, 1, 1),
    Sketcher.Constraint("Coincident", 1, 2, 2, 1),
    Sketcher.Constraint("Coincident", 2, 2, 3, 1),
    Sketcher.Constraint("Coincident", 3, 2, 0, 1),
    Sketcher.Constraint("Horizontal", 0),
    Sketcher.Constraint("Vertical", 1),
    Sketcher.Constraint("Horizontal", 2),
    Sketcher.Constraint("Vertical", 3),
    Sketcher.Constraint("Equal", 2, 1),
    Sketcher.Constraint("Diameter", 4, Q("4.2 mm")),
    Sketcher.Constraint("DistanceX", 0, 2, 0, 1, Q("20 mm")),
    Sketcher.Constraint("DistanceX", -1, 1, 4, 3, Q("168 mm")),
    Sketcher.Constraint("DistanceY", -1, 1, 4, 3, Q("110 mm")),
    Sketcher.Constraint("DistanceX", -1, 1, 0, 2, Q("158 mm")),
    Sketcher.Constraint("DistanceY", -1, 1, 0, 2, Q("120 mm")),
])
pad13 = body13.newObject("PartDesign::Pad", "Pad012")
pad13.Profile = sketch13
pad13.Length = 260
body14 = doc.addObject("PartDesign::Body", "Body013")

sketch14 = body14.newObject("Sketcher::SketchObject", "Sketch013")
sketch14.AttachmentSupport = (doc.getObject("XZ_Plane013"), [""])
sketch14.MapMode = "FlatFace"
sketch14.AttachmentOffset = App.Placement(Vector(0, 0, -56.5), App.Rotation())
sketch14.addGeometry([
    Part.LineSegment(Vector(130, 188, 0), Vector(130, 208, 0)),
    Part.LineSegment(Vector(130, 208, 0), Vector(150, 208, 0)),
    Part.LineSegment(Vector(150, 208, 0), Vector(150, 188, 0)),
    Part.LineSegment(Vector(150, 188, 0), Vector(130, 188, 0)),
    Part.Circle(Vector(140, 198, 0), Vector(0, 0, 1), 2.1),
], False)
sketch14.addConstraint([
    Sketcher.Constraint("Coincident", 0, 2, 1, 1),
    Sketcher.Constraint("Coincident", 1, 2, 2, 1),
    Sketcher.Constraint("Coincident", 2, 2, 3, 1),
    Sketcher.Constraint("Coincident", 3, 2, 0, 1),
    Sketcher.Constraint("Vertical", 0),
    Sketcher.Constraint("Horizontal", 1),
    Sketcher.Constraint("Vertical", 2),
    Sketcher.Constraint("Horizontal", 3),
    Sketcher.Constraint("Equal", 3, 0),
    Sketcher.Constraint("Diameter", 4, Q("4.2 mm")),
    Sketcher.Constraint("DistanceX", 1, 1, 1, 2, Q("20 mm")),
    Sketcher.Constraint("DistanceX", -1, 1, 4, 3, Q("140 mm")),
    Sketcher.Constraint("DistanceY", -1, 1, 4, 3, Q("198 mm")),
    Sketcher.Constraint("DistanceX", -1, 1, 0, 2, Q("130 mm")),
    Sketcher.Constraint("DistanceY", -1, 1, 0, 2, Q("208 mm")),
])
pad14 = body14.newObject("PartDesign::Pad", "Pad013")
pad14.Profile = sketch14
pad14.Length = 101.5
pad14.Reversed = True
body15 = doc.addObject("PartDesign::Body", "Body014")

sketch15 = body15.newObject("Sketcher::SketchObject", "Sketch014")
sketch15.AttachmentSupport = (doc.getObject("XZ_Plane014"), [""])
sketch15.MapMode = "FlatFace"
sketch15.AttachmentOffset = App.Placement(Vector(0, 0, -56.5), App.Rotation())
sketch15.addGeometry([
    Part.LineSegment(Vector(-150, 188, 0), Vector(-150, 208, 0)),
    Part.LineSegment(Vector(-150, 208, 0), Vector(-130, 208, 0)),
    Part.LineSegment(Vector(-130, 208, 0), Vector(-130, 188, 0)),
    Part.LineSegment(Vector(-130, 188, 0), Vector(-150, 188, 0)),
    Part.Circle(Vector(-140, 198, 0), Vector(0, 0, 1), 2.1),
], False)
sketch15.addConstraint([
    Sketcher.Constraint("Coincident", 0, 2, 1, 1),
    Sketcher.Constraint("Coincident", 1, 2, 2, 1),
    Sketcher.Constraint("Coincident", 2, 2, 3, 1),
    Sketcher.Constraint("Coincident", 3, 2, 0, 1),
    Sketcher.Constraint("Vertical", 0),
    Sketcher.Constraint("Horizontal", 1),
    Sketcher.Constraint("Vertical", 2),
    Sketcher.Constraint("Horizontal", 3),
    Sketcher.Constraint("Equal", 3, 0),
    Sketcher.Constraint("Diameter", 4, Q("4.2 mm")),
    Sketcher.Constraint("DistanceX", 1, 1, 1, 2, Q("20 mm")),
    Sketcher.Constraint("DistanceX", 4, 3, -1, 1, Q("140 mm")),
    Sketcher.Constraint("DistanceY", -1, 1, 4, 3, Q("198 mm")),
    Sketcher.Constraint("DistanceX", 0, 2, -1, 1, Q("150 mm")),
    Sketcher.Constraint("DistanceY", -1, 1, 0, 2, Q("208 mm")),
])
pad15 = body15.newObject("PartDesign::Pad", "Pad014")
pad15.Profile = sketch15
pad15.Length = 101.5
pad15.Reversed = True
body16 = doc.addObject("PartDesign::Body", "Body015")

sketch16 = body16.newObject("Sketcher::SketchObject", "Sketch015")
sketch16.AttachmentSupport = (doc.getObject("XZ_Plane015"), [""])
sketch16.MapMode = "FlatFace"
sketch16.AttachmentOffset = App.Placement(Vector(0, 0, -56.5), App.Rotation())
sketch16.addGeometry([
    Part.LineSegment(Vector(130, -208, 0), Vector(130, -188, 0)),
    Part.LineSegment(Vector(130, -188, 0), Vector(150, -188, 0)),
    Part.LineSegment(Vector(150, -188, 0), Vector(150, -208, 0)),
    Part.LineSegment(Vector(150, -208, 0), Vector(130, -208, 0)),
    Part.Circle(Vector(140, -198, 0), Vector(0, 0, 1), 2.1),
], False)
sketch16.addConstraint([
    Sketcher.Constraint("Coincident", 0, 2, 1, 1),
    Sketcher.Constraint("Coincident", 1, 2, 2, 1),
    Sketcher.Constraint("Coincident", 2, 2, 3, 1),
    Sketcher.Constraint("Coincident", 3, 2, 0, 1),
    Sketcher.Constraint("Vertical", 0),
    Sketcher.Constraint("Horizontal", 1),
    Sketcher.Constraint("Vertical", 2),
    Sketcher.Constraint("Horizontal", 3),
    Sketcher.Constraint("Equal", 3, 0),
    Sketcher.Constraint("Diameter", 4, Q("4.2 mm")),
    Sketcher.Constraint("DistanceX", 1, 1, 1, 2, Q("20 mm")),
    Sketcher.Constraint("DistanceX", -1, 1, 4, 3, Q("140 mm")),
    Sketcher.Constraint("DistanceY", 4, 3, -1, 1, Q("198 mm")),
    Sketcher.Constraint("DistanceX", -1, 1, 0, 2, Q("130 mm")),
    Sketcher.Constraint("DistanceY", 0, 2, -1, 1, Q("188 mm")),
])
pad16 = body16.newObject("PartDesign::Pad", "Pad015")
pad16.Profile = sketch16
pad16.Length = 101.5
pad16.Reversed = True
body17 = doc.addObject("PartDesign::Body", "Body016")

sketch17 = body17.newObject("Sketcher::SketchObject", "Sketch016")
sketch17.AttachmentSupport = (doc.getObject("XZ_Plane016"), [""])
sketch17.MapMode = "FlatFace"
sketch17.AttachmentOffset = App.Placement(Vector(0, 0, -56.5), App.Rotation())
sketch17.addGeometry([
    Part.LineSegment(Vector(-150, -208, 0), Vector(-150, -188, 0)),
    Part.LineSegment(Vector(-150, -188, 0), Vector(-130, -188, 0)),
    Part.LineSegment(Vector(-130, -188, 0), Vector(-130, -208, 0)),
    Part.LineSegment(Vector(-130, -208, 0), Vector(-150, -208, 0)),
    Part.Circle(Vector(-140, -198, 0), Vector(0, 0, 1), 2.1),
], False)
sketch17.addConstraint([
    Sketcher.Constraint("Coincident", 0, 2, 1, 1),
    Sketcher.Constraint("Coincident", 1, 2, 2, 1),
    Sketcher.Constraint("Coincident", 2, 2, 3, 1),
    Sketcher.Constraint("Coincident", 3, 2, 0, 1),
    Sketcher.Constraint("Vertical", 0),
    Sketcher.Constraint("Horizontal", 1),
    Sketcher.Constraint("Vertical", 2),
    Sketcher.Constraint("Horizontal", 3),
    Sketcher.Constraint("Equal", 3, 0),
    Sketcher.Constraint("Diameter", 4, Q("4.2 mm")),
    Sketcher.Constraint("DistanceX", 1, 1, 1, 2, Q("20 mm")),
    Sketcher.Constraint("DistanceX", 4, 3, -1, 1, Q("140 mm")),
    Sketcher.Constraint("DistanceY", 4, 3, -1, 1, Q("198 mm")),
    Sketcher.Constraint("DistanceX", 0, 2, -1, 1, Q("150 mm")),
    Sketcher.Constraint("DistanceY", 0, 2, -1, 1, Q("188 mm")),
])
pad17 = body17.newObject("PartDesign::Pad", "Pad016")
pad17.Profile = sketch17
pad17.Length = 101.5
pad17.Reversed = True

doc.recompute()
